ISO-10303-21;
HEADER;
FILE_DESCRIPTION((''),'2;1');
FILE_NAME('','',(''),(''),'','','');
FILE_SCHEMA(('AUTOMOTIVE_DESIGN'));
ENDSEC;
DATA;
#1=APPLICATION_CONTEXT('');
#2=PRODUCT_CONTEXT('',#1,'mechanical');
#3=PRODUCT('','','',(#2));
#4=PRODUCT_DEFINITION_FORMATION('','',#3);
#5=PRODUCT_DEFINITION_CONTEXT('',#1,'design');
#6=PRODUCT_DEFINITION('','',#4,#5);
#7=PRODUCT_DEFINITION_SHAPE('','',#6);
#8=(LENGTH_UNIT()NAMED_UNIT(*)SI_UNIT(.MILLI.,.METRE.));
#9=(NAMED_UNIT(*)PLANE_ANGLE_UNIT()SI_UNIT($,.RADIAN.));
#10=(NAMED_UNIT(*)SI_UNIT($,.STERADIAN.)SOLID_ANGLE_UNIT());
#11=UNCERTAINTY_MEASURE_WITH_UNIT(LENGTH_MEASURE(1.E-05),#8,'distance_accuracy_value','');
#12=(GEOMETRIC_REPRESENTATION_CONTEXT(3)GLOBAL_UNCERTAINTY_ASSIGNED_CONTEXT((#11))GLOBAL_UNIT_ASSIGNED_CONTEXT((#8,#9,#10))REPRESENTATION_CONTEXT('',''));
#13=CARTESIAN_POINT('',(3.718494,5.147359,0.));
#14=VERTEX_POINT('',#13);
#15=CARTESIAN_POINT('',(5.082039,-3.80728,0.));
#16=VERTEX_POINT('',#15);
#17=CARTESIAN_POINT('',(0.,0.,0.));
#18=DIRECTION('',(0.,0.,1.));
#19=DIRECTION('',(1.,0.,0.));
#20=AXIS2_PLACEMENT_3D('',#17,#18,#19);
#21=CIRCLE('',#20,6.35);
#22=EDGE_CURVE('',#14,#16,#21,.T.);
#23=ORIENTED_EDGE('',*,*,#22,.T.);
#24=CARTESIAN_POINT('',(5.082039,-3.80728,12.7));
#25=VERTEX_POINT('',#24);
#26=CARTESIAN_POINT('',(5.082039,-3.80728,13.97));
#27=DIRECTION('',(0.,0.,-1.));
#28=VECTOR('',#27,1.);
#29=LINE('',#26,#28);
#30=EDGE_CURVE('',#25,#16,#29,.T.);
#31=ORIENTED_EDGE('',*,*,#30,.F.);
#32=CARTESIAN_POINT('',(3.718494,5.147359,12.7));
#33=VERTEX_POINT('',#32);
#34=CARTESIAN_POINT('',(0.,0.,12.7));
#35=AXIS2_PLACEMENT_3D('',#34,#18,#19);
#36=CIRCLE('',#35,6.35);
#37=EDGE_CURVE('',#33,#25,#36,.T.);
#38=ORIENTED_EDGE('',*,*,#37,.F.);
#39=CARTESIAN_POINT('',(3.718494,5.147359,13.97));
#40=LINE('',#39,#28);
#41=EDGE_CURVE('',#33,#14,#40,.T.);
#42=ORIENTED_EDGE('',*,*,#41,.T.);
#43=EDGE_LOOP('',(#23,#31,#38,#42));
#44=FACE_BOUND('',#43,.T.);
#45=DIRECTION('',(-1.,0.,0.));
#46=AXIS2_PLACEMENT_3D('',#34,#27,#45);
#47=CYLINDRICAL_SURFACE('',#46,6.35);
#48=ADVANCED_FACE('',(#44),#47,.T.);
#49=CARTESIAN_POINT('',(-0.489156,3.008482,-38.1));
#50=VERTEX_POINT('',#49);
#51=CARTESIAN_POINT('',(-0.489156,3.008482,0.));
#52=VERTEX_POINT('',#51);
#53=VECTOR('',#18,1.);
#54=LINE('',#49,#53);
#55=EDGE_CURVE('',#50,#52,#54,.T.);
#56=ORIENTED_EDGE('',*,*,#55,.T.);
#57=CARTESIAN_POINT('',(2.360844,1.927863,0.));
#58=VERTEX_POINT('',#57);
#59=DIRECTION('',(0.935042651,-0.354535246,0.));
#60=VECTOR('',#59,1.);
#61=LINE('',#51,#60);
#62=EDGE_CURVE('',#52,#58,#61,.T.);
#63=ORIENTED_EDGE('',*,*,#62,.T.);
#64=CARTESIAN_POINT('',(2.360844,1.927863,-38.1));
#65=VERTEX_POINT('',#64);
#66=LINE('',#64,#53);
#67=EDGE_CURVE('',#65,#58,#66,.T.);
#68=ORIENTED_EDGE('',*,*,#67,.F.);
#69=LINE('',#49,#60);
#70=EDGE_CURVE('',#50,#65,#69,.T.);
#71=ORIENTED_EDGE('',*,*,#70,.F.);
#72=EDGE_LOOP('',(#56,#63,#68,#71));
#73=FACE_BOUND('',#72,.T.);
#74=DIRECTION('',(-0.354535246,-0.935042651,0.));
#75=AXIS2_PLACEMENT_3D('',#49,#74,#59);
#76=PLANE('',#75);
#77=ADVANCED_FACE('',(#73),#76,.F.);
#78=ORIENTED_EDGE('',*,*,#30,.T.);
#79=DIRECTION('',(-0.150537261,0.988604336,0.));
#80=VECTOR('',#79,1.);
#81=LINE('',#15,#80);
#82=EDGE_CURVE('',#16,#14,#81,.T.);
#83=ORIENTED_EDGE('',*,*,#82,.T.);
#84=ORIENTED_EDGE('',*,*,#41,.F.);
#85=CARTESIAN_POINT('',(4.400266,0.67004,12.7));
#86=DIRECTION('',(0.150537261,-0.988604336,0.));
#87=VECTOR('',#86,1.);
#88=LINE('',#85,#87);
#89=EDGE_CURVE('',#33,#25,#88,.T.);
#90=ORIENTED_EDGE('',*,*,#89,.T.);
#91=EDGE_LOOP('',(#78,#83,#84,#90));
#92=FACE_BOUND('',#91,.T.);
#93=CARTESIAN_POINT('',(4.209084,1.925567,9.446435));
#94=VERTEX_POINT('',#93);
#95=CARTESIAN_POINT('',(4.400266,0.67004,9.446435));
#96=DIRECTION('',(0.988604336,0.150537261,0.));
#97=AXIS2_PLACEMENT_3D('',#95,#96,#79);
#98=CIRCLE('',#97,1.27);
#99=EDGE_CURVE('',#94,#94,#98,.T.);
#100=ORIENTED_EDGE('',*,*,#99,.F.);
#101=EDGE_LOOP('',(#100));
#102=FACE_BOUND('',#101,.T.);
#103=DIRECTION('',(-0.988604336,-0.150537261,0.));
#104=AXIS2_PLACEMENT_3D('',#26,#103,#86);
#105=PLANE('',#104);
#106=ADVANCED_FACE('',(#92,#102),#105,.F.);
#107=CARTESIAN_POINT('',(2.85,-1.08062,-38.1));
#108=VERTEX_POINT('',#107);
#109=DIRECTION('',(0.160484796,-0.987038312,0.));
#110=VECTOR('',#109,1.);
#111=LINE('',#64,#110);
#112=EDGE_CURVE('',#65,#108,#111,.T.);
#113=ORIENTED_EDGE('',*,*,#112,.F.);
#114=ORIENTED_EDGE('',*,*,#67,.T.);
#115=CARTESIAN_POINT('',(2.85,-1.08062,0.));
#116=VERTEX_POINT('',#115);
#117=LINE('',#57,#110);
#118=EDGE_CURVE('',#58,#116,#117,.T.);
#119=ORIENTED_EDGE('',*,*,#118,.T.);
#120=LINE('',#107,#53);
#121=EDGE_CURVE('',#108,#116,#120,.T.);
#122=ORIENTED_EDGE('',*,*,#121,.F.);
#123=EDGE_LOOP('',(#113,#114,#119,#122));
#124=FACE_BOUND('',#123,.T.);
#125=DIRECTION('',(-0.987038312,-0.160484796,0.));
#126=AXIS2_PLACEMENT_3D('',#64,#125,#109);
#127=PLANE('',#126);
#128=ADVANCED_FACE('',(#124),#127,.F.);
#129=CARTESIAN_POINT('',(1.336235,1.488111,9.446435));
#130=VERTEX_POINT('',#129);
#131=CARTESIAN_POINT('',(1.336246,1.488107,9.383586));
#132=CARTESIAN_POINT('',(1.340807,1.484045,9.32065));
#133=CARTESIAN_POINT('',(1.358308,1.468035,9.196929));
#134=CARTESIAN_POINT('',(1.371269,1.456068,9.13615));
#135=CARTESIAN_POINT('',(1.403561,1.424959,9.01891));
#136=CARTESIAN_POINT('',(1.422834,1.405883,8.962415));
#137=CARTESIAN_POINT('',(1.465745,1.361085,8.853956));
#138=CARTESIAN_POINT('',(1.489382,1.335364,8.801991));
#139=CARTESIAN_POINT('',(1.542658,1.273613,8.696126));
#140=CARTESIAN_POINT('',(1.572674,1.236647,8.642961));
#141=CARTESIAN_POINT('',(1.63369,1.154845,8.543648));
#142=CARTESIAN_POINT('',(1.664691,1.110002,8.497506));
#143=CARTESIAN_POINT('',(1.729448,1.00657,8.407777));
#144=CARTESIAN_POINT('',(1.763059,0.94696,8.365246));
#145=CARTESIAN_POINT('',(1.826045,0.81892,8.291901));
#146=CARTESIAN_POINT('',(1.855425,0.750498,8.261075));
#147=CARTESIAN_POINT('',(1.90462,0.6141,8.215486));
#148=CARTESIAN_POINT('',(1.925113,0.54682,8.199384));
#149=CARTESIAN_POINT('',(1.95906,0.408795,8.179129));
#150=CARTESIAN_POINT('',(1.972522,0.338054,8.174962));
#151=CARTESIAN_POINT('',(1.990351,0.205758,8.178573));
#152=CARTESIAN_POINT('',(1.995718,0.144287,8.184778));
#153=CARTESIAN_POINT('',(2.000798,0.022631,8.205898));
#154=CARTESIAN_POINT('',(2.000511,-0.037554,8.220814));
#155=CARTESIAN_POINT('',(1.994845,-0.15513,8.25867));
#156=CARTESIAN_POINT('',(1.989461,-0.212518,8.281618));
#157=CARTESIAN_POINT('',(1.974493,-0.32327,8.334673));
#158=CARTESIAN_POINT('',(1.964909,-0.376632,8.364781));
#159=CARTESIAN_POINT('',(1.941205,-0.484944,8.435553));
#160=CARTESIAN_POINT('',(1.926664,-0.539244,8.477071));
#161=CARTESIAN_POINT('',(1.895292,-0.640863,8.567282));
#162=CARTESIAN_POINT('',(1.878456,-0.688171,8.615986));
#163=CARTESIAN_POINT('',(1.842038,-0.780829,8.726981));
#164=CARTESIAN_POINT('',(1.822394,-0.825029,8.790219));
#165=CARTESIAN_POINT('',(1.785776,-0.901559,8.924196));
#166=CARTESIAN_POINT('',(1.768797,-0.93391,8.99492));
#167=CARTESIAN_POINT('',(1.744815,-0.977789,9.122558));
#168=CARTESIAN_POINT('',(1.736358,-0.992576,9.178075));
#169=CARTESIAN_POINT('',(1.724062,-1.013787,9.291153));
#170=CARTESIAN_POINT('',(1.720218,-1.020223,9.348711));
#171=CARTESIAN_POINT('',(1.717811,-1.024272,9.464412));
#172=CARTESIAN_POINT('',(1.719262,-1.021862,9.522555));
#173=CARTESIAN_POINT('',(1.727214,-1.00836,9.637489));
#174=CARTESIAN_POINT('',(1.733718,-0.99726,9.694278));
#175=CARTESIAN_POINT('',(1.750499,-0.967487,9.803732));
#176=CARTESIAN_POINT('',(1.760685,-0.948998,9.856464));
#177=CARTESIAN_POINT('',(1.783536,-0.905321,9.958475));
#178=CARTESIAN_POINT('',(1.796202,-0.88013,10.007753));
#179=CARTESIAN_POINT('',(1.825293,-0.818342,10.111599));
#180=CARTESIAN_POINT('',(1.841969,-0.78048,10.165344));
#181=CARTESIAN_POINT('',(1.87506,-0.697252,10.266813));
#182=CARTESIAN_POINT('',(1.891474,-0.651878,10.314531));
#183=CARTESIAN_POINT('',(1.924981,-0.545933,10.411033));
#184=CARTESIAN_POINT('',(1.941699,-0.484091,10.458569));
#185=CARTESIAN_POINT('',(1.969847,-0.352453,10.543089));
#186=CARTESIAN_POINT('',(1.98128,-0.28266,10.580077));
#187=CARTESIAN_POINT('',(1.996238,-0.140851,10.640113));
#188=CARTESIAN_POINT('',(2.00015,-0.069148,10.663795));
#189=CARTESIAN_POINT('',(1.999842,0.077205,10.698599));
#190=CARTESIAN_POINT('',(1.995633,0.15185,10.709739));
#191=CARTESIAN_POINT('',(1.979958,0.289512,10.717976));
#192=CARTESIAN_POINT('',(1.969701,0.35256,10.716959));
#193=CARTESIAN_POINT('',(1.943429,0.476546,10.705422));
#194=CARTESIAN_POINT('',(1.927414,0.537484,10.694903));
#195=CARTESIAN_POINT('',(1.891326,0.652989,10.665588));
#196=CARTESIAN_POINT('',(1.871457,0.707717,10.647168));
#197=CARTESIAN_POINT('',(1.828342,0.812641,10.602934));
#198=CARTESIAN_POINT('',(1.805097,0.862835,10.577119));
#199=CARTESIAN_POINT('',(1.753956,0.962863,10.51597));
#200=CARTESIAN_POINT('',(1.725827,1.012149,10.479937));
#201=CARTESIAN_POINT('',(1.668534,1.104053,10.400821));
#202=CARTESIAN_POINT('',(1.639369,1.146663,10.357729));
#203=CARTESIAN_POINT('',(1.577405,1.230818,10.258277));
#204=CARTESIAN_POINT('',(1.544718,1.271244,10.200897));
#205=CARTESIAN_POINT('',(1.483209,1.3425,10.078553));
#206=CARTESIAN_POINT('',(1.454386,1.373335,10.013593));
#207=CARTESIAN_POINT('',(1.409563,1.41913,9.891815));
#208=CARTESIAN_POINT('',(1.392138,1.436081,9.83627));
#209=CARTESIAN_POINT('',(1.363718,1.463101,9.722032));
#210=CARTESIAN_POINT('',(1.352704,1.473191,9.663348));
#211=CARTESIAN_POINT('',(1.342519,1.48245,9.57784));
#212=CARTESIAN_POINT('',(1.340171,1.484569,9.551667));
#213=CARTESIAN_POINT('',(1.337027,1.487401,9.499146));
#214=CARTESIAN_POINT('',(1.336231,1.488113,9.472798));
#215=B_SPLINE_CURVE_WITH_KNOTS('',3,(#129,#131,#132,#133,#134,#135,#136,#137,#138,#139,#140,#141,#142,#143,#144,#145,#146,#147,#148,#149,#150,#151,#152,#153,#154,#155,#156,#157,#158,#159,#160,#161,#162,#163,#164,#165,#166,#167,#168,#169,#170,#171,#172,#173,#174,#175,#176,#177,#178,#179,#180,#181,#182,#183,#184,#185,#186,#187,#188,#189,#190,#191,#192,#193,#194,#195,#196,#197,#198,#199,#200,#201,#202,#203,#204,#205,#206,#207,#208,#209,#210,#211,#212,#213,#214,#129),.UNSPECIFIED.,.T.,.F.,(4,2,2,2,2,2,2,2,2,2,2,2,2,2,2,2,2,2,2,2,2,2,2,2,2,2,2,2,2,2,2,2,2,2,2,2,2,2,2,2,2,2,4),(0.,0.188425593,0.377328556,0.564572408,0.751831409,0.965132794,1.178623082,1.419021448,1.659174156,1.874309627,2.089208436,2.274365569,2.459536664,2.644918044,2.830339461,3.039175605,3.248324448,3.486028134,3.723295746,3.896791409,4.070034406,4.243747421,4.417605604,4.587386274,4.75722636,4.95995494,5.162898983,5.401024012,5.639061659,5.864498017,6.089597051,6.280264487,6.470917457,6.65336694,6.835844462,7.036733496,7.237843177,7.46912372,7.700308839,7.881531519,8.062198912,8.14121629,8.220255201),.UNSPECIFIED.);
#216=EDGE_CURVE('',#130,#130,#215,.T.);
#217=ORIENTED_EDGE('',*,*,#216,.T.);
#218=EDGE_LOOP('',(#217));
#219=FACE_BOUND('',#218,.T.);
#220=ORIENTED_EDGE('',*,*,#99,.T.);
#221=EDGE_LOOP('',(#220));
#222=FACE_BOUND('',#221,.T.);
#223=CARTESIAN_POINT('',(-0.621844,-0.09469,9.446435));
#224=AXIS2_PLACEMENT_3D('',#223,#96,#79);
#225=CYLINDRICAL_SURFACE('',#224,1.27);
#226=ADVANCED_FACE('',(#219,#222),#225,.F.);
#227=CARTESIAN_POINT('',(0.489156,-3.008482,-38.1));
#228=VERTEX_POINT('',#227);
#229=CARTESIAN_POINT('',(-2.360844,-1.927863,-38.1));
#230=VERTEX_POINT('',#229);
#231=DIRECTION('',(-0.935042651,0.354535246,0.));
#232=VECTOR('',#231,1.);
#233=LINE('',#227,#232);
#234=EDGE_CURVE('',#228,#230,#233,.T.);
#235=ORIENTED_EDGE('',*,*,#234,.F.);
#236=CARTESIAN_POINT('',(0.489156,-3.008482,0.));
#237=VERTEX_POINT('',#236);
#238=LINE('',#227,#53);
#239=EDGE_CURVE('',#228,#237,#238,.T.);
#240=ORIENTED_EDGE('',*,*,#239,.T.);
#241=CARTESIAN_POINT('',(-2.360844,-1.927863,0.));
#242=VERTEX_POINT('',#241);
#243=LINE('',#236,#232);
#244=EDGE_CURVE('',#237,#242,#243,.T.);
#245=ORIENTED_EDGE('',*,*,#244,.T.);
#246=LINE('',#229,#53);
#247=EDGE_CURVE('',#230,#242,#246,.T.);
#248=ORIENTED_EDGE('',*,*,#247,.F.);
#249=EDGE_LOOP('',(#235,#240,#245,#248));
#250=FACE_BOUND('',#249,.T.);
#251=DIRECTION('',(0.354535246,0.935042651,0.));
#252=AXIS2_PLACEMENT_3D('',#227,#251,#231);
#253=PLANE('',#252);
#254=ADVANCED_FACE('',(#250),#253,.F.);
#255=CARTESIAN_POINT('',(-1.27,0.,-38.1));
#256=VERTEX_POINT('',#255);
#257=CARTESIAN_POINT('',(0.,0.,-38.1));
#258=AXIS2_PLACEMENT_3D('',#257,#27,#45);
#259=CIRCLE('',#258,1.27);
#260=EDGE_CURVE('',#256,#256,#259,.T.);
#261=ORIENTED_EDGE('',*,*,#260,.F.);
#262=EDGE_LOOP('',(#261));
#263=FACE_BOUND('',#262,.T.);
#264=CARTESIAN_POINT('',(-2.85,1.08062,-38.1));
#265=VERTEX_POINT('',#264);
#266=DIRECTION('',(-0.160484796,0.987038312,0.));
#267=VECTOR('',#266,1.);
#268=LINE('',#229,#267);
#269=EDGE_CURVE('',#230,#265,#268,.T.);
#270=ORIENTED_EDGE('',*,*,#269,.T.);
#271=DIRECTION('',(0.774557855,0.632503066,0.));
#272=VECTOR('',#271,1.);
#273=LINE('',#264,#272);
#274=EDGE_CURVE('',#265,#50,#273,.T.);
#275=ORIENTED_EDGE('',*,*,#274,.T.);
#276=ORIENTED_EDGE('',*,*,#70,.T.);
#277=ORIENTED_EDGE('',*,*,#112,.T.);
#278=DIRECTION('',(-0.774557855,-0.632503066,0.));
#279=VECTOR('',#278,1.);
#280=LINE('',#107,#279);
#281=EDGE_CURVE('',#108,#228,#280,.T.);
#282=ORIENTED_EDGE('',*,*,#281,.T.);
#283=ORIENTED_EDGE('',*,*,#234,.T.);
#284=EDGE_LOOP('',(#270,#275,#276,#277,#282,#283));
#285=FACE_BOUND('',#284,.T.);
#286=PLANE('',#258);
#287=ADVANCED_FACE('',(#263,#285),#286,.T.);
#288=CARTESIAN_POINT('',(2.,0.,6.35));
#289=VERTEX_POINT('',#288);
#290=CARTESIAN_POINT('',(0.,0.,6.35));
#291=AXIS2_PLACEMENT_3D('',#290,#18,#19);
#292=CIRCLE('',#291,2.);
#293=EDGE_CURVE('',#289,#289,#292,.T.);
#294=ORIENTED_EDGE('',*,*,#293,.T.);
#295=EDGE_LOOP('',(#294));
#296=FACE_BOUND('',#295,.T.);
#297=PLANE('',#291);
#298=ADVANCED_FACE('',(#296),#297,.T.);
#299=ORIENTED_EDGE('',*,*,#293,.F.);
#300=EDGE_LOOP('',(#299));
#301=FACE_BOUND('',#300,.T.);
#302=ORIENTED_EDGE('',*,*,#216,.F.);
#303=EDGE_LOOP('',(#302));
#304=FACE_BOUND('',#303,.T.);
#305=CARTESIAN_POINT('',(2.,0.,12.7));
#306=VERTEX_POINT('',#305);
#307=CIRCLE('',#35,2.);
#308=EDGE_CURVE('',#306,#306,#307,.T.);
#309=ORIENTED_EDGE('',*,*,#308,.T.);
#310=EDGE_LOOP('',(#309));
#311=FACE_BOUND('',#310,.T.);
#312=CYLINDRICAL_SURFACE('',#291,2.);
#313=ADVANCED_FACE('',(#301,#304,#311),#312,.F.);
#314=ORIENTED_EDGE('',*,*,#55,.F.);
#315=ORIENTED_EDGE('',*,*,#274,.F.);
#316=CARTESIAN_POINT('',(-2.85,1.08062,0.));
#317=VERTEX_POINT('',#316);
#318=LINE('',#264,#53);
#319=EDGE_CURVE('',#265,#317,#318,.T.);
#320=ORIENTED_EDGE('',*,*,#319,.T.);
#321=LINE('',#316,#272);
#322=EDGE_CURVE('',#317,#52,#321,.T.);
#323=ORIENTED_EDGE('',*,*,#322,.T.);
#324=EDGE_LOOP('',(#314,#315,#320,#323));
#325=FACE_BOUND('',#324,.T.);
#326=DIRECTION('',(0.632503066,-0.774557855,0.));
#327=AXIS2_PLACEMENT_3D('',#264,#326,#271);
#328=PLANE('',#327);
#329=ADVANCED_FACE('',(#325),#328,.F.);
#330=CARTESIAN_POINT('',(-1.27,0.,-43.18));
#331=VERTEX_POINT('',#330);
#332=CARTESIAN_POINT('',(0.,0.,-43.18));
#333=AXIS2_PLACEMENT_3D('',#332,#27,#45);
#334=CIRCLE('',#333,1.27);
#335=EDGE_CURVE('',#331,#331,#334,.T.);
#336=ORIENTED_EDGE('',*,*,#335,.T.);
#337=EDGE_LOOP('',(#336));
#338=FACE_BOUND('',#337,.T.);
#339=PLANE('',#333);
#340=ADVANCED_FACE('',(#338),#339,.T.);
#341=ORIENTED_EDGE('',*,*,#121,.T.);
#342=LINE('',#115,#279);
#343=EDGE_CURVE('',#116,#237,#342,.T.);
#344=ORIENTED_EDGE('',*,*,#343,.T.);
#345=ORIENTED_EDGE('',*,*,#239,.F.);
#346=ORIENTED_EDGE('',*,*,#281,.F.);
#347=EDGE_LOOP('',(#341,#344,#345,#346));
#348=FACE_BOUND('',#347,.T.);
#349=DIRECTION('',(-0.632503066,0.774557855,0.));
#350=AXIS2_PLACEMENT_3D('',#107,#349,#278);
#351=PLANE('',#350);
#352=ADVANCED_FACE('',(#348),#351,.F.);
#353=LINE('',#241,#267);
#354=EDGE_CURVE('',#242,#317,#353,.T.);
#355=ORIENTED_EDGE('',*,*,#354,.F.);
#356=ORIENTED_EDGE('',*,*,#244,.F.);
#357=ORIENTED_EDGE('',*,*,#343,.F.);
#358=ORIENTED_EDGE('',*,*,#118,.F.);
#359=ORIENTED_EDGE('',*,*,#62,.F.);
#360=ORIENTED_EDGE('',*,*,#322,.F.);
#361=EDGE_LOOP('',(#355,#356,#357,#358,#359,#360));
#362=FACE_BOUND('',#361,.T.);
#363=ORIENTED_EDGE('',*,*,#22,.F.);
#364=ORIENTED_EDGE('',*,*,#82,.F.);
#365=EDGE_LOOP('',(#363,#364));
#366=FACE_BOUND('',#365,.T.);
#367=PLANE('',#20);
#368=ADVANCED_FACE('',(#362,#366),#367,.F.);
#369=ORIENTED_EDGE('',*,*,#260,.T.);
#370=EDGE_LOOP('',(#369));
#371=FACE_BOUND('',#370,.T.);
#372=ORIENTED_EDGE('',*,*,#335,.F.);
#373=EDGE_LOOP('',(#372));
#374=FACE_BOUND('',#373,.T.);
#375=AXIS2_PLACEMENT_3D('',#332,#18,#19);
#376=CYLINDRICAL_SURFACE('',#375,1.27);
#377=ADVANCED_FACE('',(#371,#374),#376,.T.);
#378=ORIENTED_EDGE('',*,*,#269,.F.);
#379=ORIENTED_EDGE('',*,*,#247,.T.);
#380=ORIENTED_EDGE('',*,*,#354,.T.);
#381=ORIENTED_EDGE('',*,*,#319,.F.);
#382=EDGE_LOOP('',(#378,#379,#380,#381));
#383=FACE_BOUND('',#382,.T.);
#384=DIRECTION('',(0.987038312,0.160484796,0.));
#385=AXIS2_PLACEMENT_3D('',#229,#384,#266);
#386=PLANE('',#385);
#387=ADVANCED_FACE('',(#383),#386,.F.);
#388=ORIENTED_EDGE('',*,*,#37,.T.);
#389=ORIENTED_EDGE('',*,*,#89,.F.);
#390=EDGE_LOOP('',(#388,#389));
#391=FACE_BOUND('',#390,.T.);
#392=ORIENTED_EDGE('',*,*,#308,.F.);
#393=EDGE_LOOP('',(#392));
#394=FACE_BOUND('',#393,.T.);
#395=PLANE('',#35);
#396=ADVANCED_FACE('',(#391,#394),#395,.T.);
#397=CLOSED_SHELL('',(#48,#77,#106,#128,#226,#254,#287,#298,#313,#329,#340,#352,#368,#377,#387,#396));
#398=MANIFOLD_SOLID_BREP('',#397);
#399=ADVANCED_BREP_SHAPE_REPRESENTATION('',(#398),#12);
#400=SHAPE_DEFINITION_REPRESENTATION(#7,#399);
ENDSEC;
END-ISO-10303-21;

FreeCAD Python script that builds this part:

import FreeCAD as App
import Part
import Sketcher
Q = App.Units.Quantity


def add_polygon(sketch, points):
    """Adds a closed chain of lines whose ends are joined by coincident constraints."""
    first, n = sketch.GeometryCount, len(points)
    for a, b in zip(points, points[1:] + points[:1]):
        sketch.addGeometry(Part.LineSegment(App.Vector(*a, 0), App.Vector(*b, 0)), False)
    for i in range(n):
        sketch.addConstraint(Sketcher.Constraint("Coincident", first + i, 2, first + (i + 1) % n, 1))

doc = App.newDocument("Part")
body = doc.addObject("PartDesign::Body", "Body")

sketch1 = body.newObject("Sketcher::SketchObject", "Sketch")
sketch1.AttachmentSupport = (doc.getObject("XY_Plane"), [""])
sketch1.MapMode = "FlatFace"
sketch1.addGeometry(Part.Circle(App.Vector(0, 0, 0), App.Vector(0, 0, 1), 6), False)
sketch1.addConstraint(Sketcher.Constraint("Coincident", 0, 3, -1, 1))
sketch1.addConstraint(Sketcher.Constraint("Diameter", 0, Q("0.5 in")))
pad1 = body.newObject("PartDesign::Pad", "Pad")
pad1.Profile = sketch1
pad1.Length = Q("0.5 in")

sketch2 = body.newObject("Sketcher::SketchObject", "Sketch001")
sketch2.AttachmentSupport = (doc.getObject("XY_Plane"), [""])
sketch2.MapMode = "FlatFace"
add_polygon(sketch2, [(-0.5, 3), (2.4, 1.9), (2.9, -1.1), (0.5, -3), (-2.4, -1.9), (-2.9, 1.1)])
sketch2.addConstraint(Sketcher.Constraint("Symmetric", 0, 2, 3, 2, -1, 1))
sketch2.addConstraint(Sketcher.Constraint("Symmetric", 1, 2, 4, 2, -1, 1))
sketch2.addConstraint(Sketcher.Constraint("Symmetric", 2, 2, 5, 2, -1, 1))
sketch2.addConstraint(Sketcher.Constraint("Equal", 0, 1))
sketch2.addConstraint(Sketcher.Constraint("Equal", 1, 2))
sketch2.addConstraint(Sketcher.Constraint("DistanceY", -1, 1, 0, 2, Q("0.0759001 in")))
sketch2.addConstraint(Sketcher.Constraint("DistanceY", 2, 2, 1, 2, Q("0.0759001 in")))
sketch2.addConstraint(Sketcher.Constraint("DistanceX", -1, 1, 1, 2, Q("2.85 mm")))
sketch2.addConstraint(Sketcher.Constraint("DistanceX", 3, 2, 2, 2, Q("2.85 mm")))
pad2 = body.newObject("PartDesign::Pad", "Pad001")
pad2.Profile = sketch2
pad2.Length = Q("1.5 in")
pad2.Reversed = True

sketch3 = body.newObject("Sketcher::SketchObject", "Sketch002")
sketch3.AttachmentSupport = (doc.getObject("XY_Plane"), [""])
sketch3.MapMode = "FlatFace"
sketch3.AttachmentOffset = App.Placement(App.Vector(0, 0, -1.5 * 25.4), App.Rotation())
sketch3.addGeometry(Part.Circle(App.Vector(0, 0, 0), App.Vector(0, 0, 1), 1.3), False)
sketch3.addConstraint(Sketcher.Constraint("Coincident", 0, 3, -1, 1))
sketch3.addConstraint(Sketcher.Constraint("Diameter", 0, Q("0.1 in")))
pad3 = body.newObject("PartDesign::Pad", "Pad002")
pad3.Profile = sketch3
pad3.Length = Q("0.2 in")
pad3.Reversed = True

sketch4 = body.newObject("Sketcher::SketchObject", "Sketch003")
sketch4.AttachmentSupport = (doc.getObject("XY_Plane"), [""])
sketch4.MapMode = "FlatFace"
add_polygon(sketch4, [(5.1, -3.8), (3.7, 5.1), (6.2, 5.5), (7.5, -3.4)])
sketch4.addConstraint(Sketcher.Constraint("Perpendicular", 0, 1))
sketch4.addConstraint(Sketcher.Constraint("Perpendicular", 1, 2))
sketch4.addConstraint(Sketcher.Constraint("Perpendicular", 2, 3))
sketch4.addConstraint(Sketcher.Constraint("Distance", 0, Q("9.057859 mm")))
sketch4.addConstraint(Sketcher.Constraint("DistanceY", -1, 1, 0, 2, Q("5.147359 mm")))
sketch4.addConstraint(Sketcher.Constraint("DistanceX", -1, 1, 2, 2, Q("7.528889 mm")))
sketch4.addConstraint(Sketcher.Constraint("DistanceX", -1, 1, 3, 2, Q("5.082039 mm")))
sketch4.addConstraint(Sketcher.Constraint("DistanceY", 3, 2, -1, 1, Q("3.80728 mm")))
pocket1 = body.newObject("PartDesign::Pocket", "Pocket")
pocket1.Profile = sketch4
pocket1.Length = Q("0.55 in")
pocket1.Reversed = True

sketch5 = body.newObject("Sketcher::SketchObject", "Sketch004")
sketch5.Placement = App.Placement(App.Vector(4.400266, 0.67004, 0), App.Rotation(App.Vector(0, 0, -1), App.Vector(-0.150537261, 0.988604336, 0), App.Vector(0.988604336, 0.150537261, 0), "ZXY"))
sketch5.addGeometry(Part.Circle(App.Vector(-9.4, 0, 0), App.Vector(0, 0, 1), 1.3), False)
sketch5.addConstraint(Sketcher.Constraint("PointOnObject", 0, 3, -1))
sketch5.addConstraint(Sketcher.Constraint("Diameter", 0, Q("0.1 in")))
sketch5.addConstraint(Sketcher.Constraint("DistanceX", 0, 3, -1, 1, Q("9.446435 mm")))
pocket2 = body.newObject("PartDesign::Pocket", "Pocket001")
pocket2.Profile = sketch5
pocket2.Length = Q("0.2 in")

sketch6 = body.newObject("Sketcher::SketchObject", "Sketch005")
sketch6.AttachmentSupport = (doc.getObject("XY_Plane"), [""])
sketch6.MapMode = "FlatFace"
sketch6.AttachmentOffset = App.Placement(App.Vector(0, 0, 0.5 * 25.4), App.Rotation())
sketch6.addGeometry(Part.Circle(App.Vector(0, 0, 0), App.Vector(0, 0, 1), 2), False)
sketch6.addConstraint(Sketcher.Constraint("Coincident", 0, 3, -1, 1))
sketch6.addConstraint(Sketcher.Constraint("Diameter", 0, Q("4 mm")))
pocket3 = body.newObject("PartDesign::Pocket", "Pocket002")
pocket3.Profile = sketch6
pocket3.Length = Q("0.25 in")

doc.recompute()
